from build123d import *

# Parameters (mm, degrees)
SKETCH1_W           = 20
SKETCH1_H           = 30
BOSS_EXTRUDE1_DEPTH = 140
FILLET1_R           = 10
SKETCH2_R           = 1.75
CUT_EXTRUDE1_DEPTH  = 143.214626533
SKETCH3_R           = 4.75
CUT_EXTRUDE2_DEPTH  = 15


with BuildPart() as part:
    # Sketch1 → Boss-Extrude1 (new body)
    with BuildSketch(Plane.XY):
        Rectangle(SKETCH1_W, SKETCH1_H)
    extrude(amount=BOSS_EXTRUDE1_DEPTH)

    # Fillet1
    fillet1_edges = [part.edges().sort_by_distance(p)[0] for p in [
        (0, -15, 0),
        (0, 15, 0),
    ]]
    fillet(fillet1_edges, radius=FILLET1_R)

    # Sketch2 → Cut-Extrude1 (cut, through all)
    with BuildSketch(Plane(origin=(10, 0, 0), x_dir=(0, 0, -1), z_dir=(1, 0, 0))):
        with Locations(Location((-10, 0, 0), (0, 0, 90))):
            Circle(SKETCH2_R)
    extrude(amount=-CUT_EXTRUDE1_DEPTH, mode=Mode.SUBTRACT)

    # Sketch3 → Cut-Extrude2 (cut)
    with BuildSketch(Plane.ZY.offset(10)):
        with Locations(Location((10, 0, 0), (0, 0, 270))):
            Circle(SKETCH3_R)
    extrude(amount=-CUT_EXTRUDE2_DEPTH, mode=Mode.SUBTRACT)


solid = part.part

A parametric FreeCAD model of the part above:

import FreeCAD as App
import Part
import Sketcher

V = App.Vector


def edges_at(feature, points):
    """Names of the edges that pass closest to the given points."""
    edges = feature.Shape.Edges
    near = lambda p: min(range(len(edges)), key=lambda i: edges[i].distToShape(Part.Vertex(*p))[0])
    return sorted({f"Edge{near(p) + 1}" for p in points})

doc = App.newDocument("Part")
body = doc.addObject("PartDesign::Body", "Body")

sketch1 = body.newObject("Sketcher::SketchObject", "Sketch")
sketch1.AttachmentSupport = (doc.getObject("XY_Plane"), [""])
sketch1.MapMode = "FlatFace"
sketch1.addGeometry(Part.LineSegment(V(-10, 15, 0), V(-10, -15, 0)), False)
sketch1.addGeometry(Part.LineSegment(V(-10, -15, 0), V(10, -15, 0)), False)
sketch1.addGeometry(Part.LineSegment(V(10, -15, 0), V(10, 15, 0)), False)
sketch1.addGeometry(Part.LineSegment(V(10, 15, 0), V(-10, 15, 0)), False)
sketch1.addConstraint(Sketcher.Constraint("Coincident", 0, 2, 1, 1))
sketch1.addConstraint(Sketcher.Constraint("Coincident", 1, 2, 2, 1))
sketch1.addConstraint(Sketcher.Constraint("Coincident", 2, 2, 3, 1))
sketch1.addConstraint(Sketcher.Constraint("Coincident", 3, 2, 0, 1))
sketch1.addConstraint(Sketcher.Constraint("Vertical", 0))
sketch1.addConstraint(Sketcher.Constraint("Horizontal", 1))
sketch1.addConstraint(Sketcher.Constraint("Vertical", 2))
sketch1.addConstraint(Sketcher.Constraint("Horizontal", 3))
sketch1.addConstraint(Sketcher.Constraint("Symmetric", 0, 2, 2, 2, -1, 1))
sketch1.addConstraint(Sketcher.Constraint("DistanceX", 1, 1, 1, 2, 20.0))
sketch1.addConstraint(Sketcher.Constraint("DistanceY", 0, 2, 0, 1, 30.0))
pad1 = body.newObject("PartDesign::Pad", "Pad")
pad1.Profile = sketch1
pad1.Length = 140
doc.recompute()

fillet = body.newObject("PartDesign::Fillet", "Fillet")
fillet.Base = (pad1, edges_at(pad1, [(0, -15, 0), (0, 15, 0)]))
fillet.Radius = 10

sketch2 = body.newObject("Sketcher::SketchObject", "Sketch001")
sketch2.AttachmentSupport = (doc.getObject("YZ_Plane"), [""])
sketch2.MapMode = "FlatFace"
sketch2.AttachmentOffset = App.Placement(V(0, 0, 10), App.Rotation())
sketch2.addGeometry(Part.Circle(V(0, 10, 0), V(0, 0, 1), 1.75), False)
sketch2.addConstraint(Sketcher.Constraint("PointOnObject", 0, 3, -2))
sketch2.addConstraint(Sketcher.Constraint("Diameter", 0, 3.5))
sketch2.addConstraint(Sketcher.Constraint("DistanceY", -1, 1, 0, 3, 10.0))
pocket1 = body.newObject("PartDesign::Pocket", "Pocket")
pocket1.Profile = sketch2
pocket1.Type = "ThroughAll"

sketch3 = body.newObject("Sketcher::SketchObject", "Sketch002")
sketch3.AttachmentSupport = (doc.getObject("YZ_Plane"), [""])
sketch3.MapMode = "FlatFace"
sketch3.AttachmentOffset = App.Placement(V(0, 0, -10), App.Rotation())
sketch3.addGeometry(Part.Circle(V(0, 10, 0), V(0, 0, 1), 4.75), False)
sketch3.addConstraint(Sketcher.Constraint("PointOnObject", 0, 3, -2))
sketch3.addConstraint(Sketcher.Constraint("Diameter", 0, 9.5))
sketch3.addConstraint(Sketcher.Constraint("DistanceY", -1, 1, 0, 3, 10.0))
pocket2 = body.newObject("PartDesign::Pocket", "Pocket001")
pocket2.Profile = sketch3
pocket2.Length = 15
pocket2.Reversed = True

doc.recompute()
